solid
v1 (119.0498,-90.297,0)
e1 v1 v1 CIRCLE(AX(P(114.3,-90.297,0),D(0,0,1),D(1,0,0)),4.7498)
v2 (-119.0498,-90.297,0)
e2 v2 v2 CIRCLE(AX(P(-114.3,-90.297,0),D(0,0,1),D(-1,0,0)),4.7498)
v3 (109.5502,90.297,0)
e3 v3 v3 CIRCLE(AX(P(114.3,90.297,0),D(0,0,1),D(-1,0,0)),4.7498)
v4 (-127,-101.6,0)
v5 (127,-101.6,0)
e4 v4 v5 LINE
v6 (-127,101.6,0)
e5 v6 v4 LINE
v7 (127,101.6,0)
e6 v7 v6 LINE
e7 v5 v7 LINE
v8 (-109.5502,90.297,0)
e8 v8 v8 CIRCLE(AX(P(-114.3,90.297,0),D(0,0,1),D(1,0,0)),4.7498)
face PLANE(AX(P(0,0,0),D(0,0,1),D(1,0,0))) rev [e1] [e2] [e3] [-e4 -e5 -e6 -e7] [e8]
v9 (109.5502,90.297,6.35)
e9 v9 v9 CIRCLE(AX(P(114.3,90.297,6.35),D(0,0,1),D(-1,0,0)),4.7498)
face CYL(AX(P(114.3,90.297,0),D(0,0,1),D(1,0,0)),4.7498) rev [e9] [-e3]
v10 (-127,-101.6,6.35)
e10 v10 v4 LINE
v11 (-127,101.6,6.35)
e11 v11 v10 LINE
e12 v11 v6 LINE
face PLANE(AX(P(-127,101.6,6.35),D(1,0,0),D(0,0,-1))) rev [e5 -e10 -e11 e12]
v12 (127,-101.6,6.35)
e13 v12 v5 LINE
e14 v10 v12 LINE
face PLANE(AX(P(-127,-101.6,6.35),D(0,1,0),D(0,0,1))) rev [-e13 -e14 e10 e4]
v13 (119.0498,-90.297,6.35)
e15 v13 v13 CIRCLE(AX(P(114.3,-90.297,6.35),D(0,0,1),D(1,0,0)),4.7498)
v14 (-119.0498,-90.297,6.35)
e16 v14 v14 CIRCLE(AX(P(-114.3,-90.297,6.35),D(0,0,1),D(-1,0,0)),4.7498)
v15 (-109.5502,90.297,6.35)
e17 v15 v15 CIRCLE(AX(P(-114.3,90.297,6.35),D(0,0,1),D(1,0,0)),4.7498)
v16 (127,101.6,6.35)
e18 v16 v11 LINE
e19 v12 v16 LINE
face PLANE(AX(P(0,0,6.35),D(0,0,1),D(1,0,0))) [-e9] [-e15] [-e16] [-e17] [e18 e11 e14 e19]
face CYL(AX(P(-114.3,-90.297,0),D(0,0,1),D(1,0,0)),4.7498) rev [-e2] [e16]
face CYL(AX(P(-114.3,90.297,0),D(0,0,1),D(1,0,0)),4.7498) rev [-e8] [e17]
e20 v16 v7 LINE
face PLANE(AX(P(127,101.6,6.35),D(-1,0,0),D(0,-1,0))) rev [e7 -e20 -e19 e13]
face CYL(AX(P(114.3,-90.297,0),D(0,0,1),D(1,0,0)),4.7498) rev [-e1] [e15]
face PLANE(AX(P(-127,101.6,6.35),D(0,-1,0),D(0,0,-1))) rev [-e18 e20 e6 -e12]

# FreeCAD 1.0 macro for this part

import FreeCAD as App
import Part
import Sketcher
Q = App.Units.Quantity

doc = App.newDocument("Part")
body = doc.addObject("PartDesign::Body", "Body")

sketch1 = body.newObject("Sketcher::SketchObject", "Sketch")
sketch1.AttachmentSupport = (doc.getObject("XY_Plane"), [""])
sketch1.MapMode = "FlatFace"
sketch1.addGeometry(Part.LineSegment(App.Vector(-127, 102, 0), App.Vector(-127, -102, 0)), False)
sketch1.addGeometry(Part.LineSegment(App.Vector(-127, -102, 0), App.Vector(127, -102, 0)), False)
sketch1.addGeometry(Part.LineSegment(App.Vector(127, -102, 0), App.Vector(127, 102, 0)), False)
sketch1.addGeometry(Part.LineSegment(App.Vector(127, 102, 0), App.Vector(-127, 102, 0)), False)
sketch1.addConstraint(Sketcher.Constraint("Coincident", 0, 2, 1, 1))
sketch1.addConstraint(Sketcher.Constraint("Coincident", 1, 2, 2, 1))
sketch1.addConstraint(Sketcher.Constraint("Coincident", 2, 2, 3, 1))
sketch1.addConstraint(Sketcher.Constraint("Coincident", 3, 2, 0, 1))
sketch1.addConstraint(Sketcher.Constraint("Vertical", 0))
sketch1.addConstraint(Sketcher.Constraint("Horizontal", 1))
sketch1.addConstraint(Sketcher.Constraint("Vertical", 2))
sketch1.addConstraint(Sketcher.Constraint("Horizontal", 3))
sketch1.addConstraint(Sketcher.Constraint("Symmetric", 0, 2, 2, 2, -1, 1))
sketch1.addConstraint(Sketcher.Constraint("DistanceX", 1, 1, 1, 2, Q("10 in")))
sketch1.addConstraint(Sketcher.Constraint("DistanceY", 0, 2, 0, 1, Q("8 in")))
pad1 = body.newObject("PartDesign::Pad", "Pad")
pad1.Profile = sketch1
pad1.Length = Q("0.25 in")

sketch2 = body.newObject("Sketcher::SketchObject", "Sketch001")
sketch2.AttachmentSupport = (doc.getObject("XY_Plane"), [""])
sketch2.MapMode = "FlatFace"
sketch2.AttachmentOffset = App.Placement(App.Vector(0, 0, 0.25 * 25.4), App.Rotation())
sketch2.addGeometry(Part.Circle(App.Vector(114.3, -90.3, 0), App.Vector(0, 0, 1), 4.7), False)
sketch2.addGeometry(Part.Circle(App.Vector(-114.3, -90.3, 0), App.Vector(0, 0, 1), 4.7), False)
sketch2.addGeometry(Part.Circle(App.Vector(114.3, 90.3, 0), App.Vector(0, 0, 1), 4.7), False)
sketch2.addGeometry(Part.Circle(App.Vector(-114.3, 90.3, 0), App.Vector(0, 0, 1), 4.7), False)
sketch2.addConstraint(Sketcher.Constraint("Equal", 0, 1))
sketch2.addConstraint(Sketcher.Constraint("Equal", 1, 2))
sketch2.addConstraint(Sketcher.Constraint("Equal", 2, 3))
sketch2.addConstraint(Sketcher.Constraint("Symmetric", 1, 3, 2, 3, -1, 1))
sketch2.addConstraint(Sketcher.Constraint("Symmetric", 0, 3, 3, 3, -1, 1))
sketch2.addConstraint(Sketcher.Constraint("Symmetric", 0, 3, 1, 3, -2))
sketch2.addConstraint(Sketcher.Constraint("Diameter", 0, Q("0.374 in")))
sketch2.addConstraint(Sketcher.Constraint("DistanceX", 1, 3, 0, 3, Q("9 in")))
sketch2.addConstraint(Sketcher.Constraint("DistanceY", 0, 3, 2, 3, Q("7.11 in")))
pocket1 = body.newObject("PartDesign::Pocket", "Pocket")
pocket1.Profile = sketch2
pocket1.Length = Q("0.25 in")

doc.recompute()
